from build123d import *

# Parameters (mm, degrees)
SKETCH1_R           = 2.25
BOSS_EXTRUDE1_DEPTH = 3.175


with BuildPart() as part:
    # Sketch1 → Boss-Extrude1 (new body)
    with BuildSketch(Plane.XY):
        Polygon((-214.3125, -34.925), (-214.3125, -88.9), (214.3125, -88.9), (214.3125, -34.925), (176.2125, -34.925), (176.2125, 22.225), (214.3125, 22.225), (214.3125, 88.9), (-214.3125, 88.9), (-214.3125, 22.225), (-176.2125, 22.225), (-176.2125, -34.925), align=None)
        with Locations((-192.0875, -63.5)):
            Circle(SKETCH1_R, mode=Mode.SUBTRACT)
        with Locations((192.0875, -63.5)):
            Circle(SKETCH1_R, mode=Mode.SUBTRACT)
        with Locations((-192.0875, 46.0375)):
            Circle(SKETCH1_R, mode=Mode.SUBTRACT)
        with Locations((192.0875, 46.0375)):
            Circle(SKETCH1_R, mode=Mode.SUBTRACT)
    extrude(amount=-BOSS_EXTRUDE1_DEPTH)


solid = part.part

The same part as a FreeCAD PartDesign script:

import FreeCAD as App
import Part
import Sketcher
from FreeCAD import Vector
Q = App.Units.Quantity


def add_polygon(sketch, points):
    """Adds a closed chain of lines whose ends are joined by coincident constraints."""
    first, n = sketch.GeometryCount, len(points)
    for a, b in zip(points, points[1:] + points[:1]):
        sketch.addGeometry(Part.LineSegment(App.Vector(*a, 0), App.Vector(*b, 0)), False)
    for i in range(n):
        sketch.addConstraint(Sketcher.Constraint("Coincident", first + i, 2, first + (i + 1) % n, 1))

doc = App.newDocument("Part")
body = doc.addObject("PartDesign::Body", "Body")

# Sketch on XY plane
sketch1 = body.newObject("Sketcher::SketchObject", "Sketch")
sketch1.AttachmentSupport = (doc.getObject("XY_Plane"), [""])
sketch1.MapMode = "FlatFace"
add_polygon(sketch1, [(-214.3125, -34.925), (-214.3125, -88.9), (214.3125, -88.9), (214.3125, -34.925), (176.2125, -34.925), (176.2125, 22.225), (214.3125, 22.225), (214.3125, 88.9), (-214.3125, 88.9), (-214.3125, 22.225), (-176.2125, 22.225), (-176.2125, -34.925)])  # lines 0-11
sketch1.addGeometry(Part.Circle(Vector(-192.0875, -63.5, 0), Vector(0, 0, 1), 2.25), False)  # 12
sketch1.addGeometry(Part.Circle(Vector(192.0875, -63.5, 0), Vector(0, 0, 1), 2.25), False)  # 13
sketch1.addGeometry(Part.Circle(Vector(-192.0875, 46.0375, 0), Vector(0, 0, 1), 2.25), False)  # 14
sketch1.addGeometry(Part.Circle(Vector(192.0875, 46.0375, 0), Vector(0, 0, 1), 2.25), False)  # 15
sketch1.addConstraint([
    Sketcher.Constraint("Vertical", 0),
    Sketcher.Constraint("Horizontal", 1),
    Sketcher.Constraint("Vertical", 2),
    Sketcher.Constraint("Horizontal", 3),
    Sketcher.Constraint("Vertical", 4),
    Sketcher.Constraint("Horizontal", 5),
    Sketcher.Constraint("Vertical", 6),
    Sketcher.Constraint("Horizontal", 7),
    Sketcher.Constraint("Vertical", 8),
    Sketcher.Constraint("Horizontal", 9),
    Sketcher.Constraint("Vertical", 10),
    Sketcher.Constraint("Horizontal", 11),
    Sketcher.Constraint("Equal", 12, 13),
    Sketcher.Constraint("Equal", 13, 14),
    Sketcher.Constraint("Equal", 14, 15),
    Sketcher.Constraint("Symmetric", 0, 2, 6, 2, -1, 1),
    Sketcher.Constraint("Symmetric", 12, 3, 13, 3, -2),
    Sketcher.Constraint("Symmetric", 14, 3, 15, 3, -2),
    Sketcher.Constraint("Symmetric", 5, 2, 8, 2, -2),
    Sketcher.Constraint("Symmetric", 3, 2, 10, 2, -2),
    Sketcher.Constraint("Vertical", 12, 3, 14, 3),
    Sketcher.Constraint("Vertical", 2, 2, 5, 2),
    Sketcher.Constraint("DistanceX", 3, 2, 3, 1, Q("1.5 in")),
    Sketcher.Constraint("DistanceY", 0, 2, 12, 3, Q("1 in")),
    Sketcher.Constraint("DistanceX", 0, 2, 13, 3, Q("16 in")),
    Sketcher.Constraint("DistanceY", 12, 3, 7, 2, Q("6 in")),
    Sketcher.Constraint("DistanceY", 4, 1, 4, 2, Q("2.25 in")),
    Sketcher.Constraint("Diameter", 12, Q("4.5 mm")),
    Sketcher.Constraint("DistanceX", 1, 1, 1, 2, Q("16.875 in")),
    Sketcher.Constraint("DistanceY", 0, 2, 0, 1, Q("2.125 in")),
    Sketcher.Constraint("DistanceY", -1, 1, 14, 3, Q("1.8125 in")),
])
pad1 = body.newObject("PartDesign::Pad", "Pad")
pad1.Profile = sketch1
pad1.Length = Q("0.125 in")
pad1.Reversed = True

doc.recompute()
